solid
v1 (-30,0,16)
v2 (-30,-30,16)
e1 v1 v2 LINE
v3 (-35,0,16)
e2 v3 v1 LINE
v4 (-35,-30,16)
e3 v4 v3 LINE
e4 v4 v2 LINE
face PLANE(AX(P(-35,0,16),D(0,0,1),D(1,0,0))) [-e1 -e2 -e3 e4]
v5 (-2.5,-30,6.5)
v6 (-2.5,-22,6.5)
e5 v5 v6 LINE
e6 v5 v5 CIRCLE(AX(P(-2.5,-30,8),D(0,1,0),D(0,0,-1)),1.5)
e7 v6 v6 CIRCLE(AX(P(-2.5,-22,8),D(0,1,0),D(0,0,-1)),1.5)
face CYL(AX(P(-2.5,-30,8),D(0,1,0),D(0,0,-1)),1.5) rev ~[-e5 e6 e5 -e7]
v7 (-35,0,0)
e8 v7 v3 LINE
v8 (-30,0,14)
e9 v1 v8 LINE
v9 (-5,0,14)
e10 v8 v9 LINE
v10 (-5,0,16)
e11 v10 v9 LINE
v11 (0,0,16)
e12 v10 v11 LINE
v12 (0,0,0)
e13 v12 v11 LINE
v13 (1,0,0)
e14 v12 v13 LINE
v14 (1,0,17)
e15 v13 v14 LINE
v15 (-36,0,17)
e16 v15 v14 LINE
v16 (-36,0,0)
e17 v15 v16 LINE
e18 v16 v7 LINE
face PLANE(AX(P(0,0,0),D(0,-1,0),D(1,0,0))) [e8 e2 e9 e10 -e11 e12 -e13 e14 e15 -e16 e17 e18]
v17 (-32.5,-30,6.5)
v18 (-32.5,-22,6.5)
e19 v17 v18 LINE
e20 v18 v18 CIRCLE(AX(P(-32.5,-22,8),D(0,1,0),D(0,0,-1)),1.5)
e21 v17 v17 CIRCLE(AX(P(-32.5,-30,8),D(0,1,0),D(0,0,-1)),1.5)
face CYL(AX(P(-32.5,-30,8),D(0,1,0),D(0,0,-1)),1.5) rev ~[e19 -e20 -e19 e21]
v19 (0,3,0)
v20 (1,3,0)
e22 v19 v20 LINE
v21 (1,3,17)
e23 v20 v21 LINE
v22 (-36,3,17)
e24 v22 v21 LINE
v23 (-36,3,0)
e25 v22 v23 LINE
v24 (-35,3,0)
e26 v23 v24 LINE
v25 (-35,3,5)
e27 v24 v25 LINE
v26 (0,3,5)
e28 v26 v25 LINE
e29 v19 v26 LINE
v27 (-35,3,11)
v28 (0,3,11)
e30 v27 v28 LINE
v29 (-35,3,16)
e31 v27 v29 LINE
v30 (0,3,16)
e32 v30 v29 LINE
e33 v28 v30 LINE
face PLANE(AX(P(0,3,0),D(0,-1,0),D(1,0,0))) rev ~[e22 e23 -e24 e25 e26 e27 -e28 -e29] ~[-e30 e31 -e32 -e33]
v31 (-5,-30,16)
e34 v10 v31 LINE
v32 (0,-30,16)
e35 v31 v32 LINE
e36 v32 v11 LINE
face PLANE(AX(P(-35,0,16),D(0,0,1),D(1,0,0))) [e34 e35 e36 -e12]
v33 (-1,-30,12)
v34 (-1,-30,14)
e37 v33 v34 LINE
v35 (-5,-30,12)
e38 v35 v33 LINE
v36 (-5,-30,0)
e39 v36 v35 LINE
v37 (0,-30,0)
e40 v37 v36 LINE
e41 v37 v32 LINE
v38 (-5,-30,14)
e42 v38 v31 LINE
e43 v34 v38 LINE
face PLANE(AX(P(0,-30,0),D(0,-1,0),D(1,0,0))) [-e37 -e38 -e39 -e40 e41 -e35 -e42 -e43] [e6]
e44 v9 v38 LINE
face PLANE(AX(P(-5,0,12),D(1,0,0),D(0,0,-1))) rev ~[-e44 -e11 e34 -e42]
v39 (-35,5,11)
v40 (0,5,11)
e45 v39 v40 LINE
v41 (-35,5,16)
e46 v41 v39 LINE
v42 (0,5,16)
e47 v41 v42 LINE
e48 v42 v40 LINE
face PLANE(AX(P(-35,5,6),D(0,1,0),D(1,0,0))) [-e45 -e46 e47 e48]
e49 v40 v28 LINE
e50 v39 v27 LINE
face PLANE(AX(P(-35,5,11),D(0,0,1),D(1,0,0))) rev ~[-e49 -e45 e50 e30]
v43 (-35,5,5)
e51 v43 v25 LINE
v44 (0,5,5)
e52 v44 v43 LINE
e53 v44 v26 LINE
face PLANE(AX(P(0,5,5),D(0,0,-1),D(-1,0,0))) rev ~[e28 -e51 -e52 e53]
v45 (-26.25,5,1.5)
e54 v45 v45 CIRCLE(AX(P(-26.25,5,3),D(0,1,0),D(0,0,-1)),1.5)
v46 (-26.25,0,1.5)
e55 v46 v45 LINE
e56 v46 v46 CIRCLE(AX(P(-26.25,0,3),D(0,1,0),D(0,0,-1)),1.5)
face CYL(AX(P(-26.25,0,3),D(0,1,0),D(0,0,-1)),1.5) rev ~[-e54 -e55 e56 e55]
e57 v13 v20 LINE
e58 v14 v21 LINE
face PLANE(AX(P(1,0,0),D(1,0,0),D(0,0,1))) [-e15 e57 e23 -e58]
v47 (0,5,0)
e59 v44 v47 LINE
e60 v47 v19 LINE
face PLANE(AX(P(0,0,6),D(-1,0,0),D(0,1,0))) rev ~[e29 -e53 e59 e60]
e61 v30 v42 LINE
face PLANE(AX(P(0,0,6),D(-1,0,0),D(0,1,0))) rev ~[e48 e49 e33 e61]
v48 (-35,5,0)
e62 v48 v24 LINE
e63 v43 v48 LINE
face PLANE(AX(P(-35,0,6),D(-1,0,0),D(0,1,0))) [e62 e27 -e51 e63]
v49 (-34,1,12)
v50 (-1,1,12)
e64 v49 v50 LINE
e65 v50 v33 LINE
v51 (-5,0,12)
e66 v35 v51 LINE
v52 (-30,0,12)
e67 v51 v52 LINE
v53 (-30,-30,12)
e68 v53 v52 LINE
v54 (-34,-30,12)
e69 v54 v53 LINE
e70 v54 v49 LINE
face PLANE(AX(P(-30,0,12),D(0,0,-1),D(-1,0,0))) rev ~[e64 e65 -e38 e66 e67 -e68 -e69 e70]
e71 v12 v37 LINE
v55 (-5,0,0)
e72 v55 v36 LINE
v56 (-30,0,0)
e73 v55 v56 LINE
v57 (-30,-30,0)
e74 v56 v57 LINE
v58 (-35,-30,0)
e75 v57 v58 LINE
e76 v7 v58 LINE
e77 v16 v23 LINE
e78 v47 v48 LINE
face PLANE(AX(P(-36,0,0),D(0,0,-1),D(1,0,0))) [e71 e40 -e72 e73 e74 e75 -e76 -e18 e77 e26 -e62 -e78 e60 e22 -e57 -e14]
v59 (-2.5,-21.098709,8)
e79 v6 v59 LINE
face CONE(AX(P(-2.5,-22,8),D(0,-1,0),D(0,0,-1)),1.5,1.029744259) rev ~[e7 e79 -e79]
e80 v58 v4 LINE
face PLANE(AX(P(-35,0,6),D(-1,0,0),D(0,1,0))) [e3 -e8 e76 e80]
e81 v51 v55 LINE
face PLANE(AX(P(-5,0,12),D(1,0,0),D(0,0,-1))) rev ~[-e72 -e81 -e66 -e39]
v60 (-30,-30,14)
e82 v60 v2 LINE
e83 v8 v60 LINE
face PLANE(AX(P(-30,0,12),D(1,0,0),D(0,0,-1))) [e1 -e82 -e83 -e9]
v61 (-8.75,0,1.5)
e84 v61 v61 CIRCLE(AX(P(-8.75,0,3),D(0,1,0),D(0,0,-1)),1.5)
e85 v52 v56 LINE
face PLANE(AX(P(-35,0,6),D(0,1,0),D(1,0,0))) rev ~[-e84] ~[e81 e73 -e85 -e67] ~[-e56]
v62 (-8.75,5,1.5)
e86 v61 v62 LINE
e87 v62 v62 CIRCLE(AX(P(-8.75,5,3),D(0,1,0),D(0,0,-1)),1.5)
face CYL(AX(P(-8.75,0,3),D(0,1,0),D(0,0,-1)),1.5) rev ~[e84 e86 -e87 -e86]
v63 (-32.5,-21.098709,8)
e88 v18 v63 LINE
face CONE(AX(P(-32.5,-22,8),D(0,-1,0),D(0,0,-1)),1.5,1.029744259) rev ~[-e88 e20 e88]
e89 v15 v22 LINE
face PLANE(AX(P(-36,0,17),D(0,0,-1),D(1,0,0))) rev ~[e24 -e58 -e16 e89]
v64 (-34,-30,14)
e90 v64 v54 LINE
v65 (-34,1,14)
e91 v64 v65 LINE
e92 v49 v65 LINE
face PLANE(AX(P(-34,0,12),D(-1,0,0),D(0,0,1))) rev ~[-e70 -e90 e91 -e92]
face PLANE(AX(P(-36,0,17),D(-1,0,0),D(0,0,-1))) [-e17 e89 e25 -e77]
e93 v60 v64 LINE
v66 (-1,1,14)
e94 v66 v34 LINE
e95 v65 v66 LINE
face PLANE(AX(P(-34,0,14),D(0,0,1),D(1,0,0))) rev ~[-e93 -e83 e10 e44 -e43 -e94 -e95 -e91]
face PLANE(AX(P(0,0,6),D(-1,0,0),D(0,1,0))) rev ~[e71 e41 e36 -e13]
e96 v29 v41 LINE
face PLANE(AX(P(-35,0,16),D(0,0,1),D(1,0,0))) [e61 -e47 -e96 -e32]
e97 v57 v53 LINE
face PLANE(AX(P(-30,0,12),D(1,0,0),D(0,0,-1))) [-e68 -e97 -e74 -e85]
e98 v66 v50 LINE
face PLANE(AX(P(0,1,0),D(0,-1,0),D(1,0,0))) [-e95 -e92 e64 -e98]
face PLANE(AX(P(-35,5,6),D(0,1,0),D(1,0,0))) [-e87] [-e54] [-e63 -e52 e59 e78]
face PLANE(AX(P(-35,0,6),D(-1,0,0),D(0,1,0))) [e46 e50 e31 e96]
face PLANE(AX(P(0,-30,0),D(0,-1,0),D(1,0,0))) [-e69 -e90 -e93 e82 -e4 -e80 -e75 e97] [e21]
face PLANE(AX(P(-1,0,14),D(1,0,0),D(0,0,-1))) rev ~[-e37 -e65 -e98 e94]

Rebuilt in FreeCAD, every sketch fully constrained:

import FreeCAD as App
import Part
import Sketcher
Q = App.Units.Quantity


def add_polygon(sketch, points):
    """Adds a closed chain of lines whose ends are joined by coincident constraints."""
    first, n = sketch.GeometryCount, len(points)
    for a, b in zip(points, points[1:] + points[:1]):
        sketch.addGeometry(Part.LineSegment(App.Vector(*a, 0), App.Vector(*b, 0)), False)
    for i in range(n):
        sketch.addConstraint(Sketcher.Constraint("Coincident", first + i, 2, first + (i + 1) % n, 1))

doc = App.newDocument("Part")
params = doc.addObject("Spreadsheet::Sheet", "Params")
for row, (alias, value) in enumerate([
    ("sketch1_width", "35 mm"),
    ("sketch1_height", "6 mm"),
    ("pad1_length", "5 mm"),
    ("sketch2_width", "35 mm"),
    ("sketch2_height", "5 mm"),
    ("pad2_length", "10 mm"),
    ("sketch3_width", "35 mm"),
    ("sketch3_height", "6 mm"),
    ("pocket1_length", "2 mm"),
    ("sketch4_diameter", "3 mm"),
    ("hole_diameter", "3 mm"),
    ("hole_depth", "8 mm"),
    ("sketch5_width", "5 mm"),
    ("sketch5_height", "16 mm"),
    ("pad3_length", "30 mm"),
    ("sketch6_width", "33 mm"),
    ("sketch6_height", "2 mm"),
    ("pocket2_length", "35 mm"),
    ("pocket2_length2", "1 mm"),
    ("sketch7_width", "1 mm"),
    ("sketch7_height", "16 mm"),
    ("sketch7_width2", "35 mm"),
    ("pad4_length", "3 mm"),
    ("sketch8_diameter", "3 mm"),
    ("hole2_diameter", "3 mm"),
    ("hole2_depth", "8 mm"),
], start=1):
    params.set(f"A{row}", alias)
    params.set(f"B{row}", "=" + value)
    params.setAlias(f"B{row}", alias)

body = doc.addObject("PartDesign::Body", "Body")

# Sketch on XZ plane
sketch1 = body.newObject("Sketcher::SketchObject", "Sketch")
sketch1.AttachmentSupport = (doc.getObject("XZ_Plane"), [""])
sketch1.MapMode = "FlatFace"
add_polygon(sketch1, [(0, 0), (-35, 0), (-35, 6), (0, 6)])  # lines 0-3
sketch1.addConstraint([
    Sketcher.Constraint("Horizontal", 0),
    Sketcher.Constraint("Vertical", 1),
    Sketcher.Constraint("Horizontal", 2),
    Sketcher.Constraint("Vertical", 3),
    Sketcher.Constraint("Coincident", 3, 2, -1, 1),
    Sketcher.Constraint("DistanceX", 0, 2, 0, 1, Q("35 mm")),
    Sketcher.Constraint("DistanceY", 1, 1, 1, 2, Q("6 mm")),
])
sketch1.setExpression("Constraints[9]", "Params.sketch1_width")
sketch1.setExpression("Constraints[10]", "Params.sketch1_height")
pad1 = body.newObject("PartDesign::Pad", "Pad")
pad1.Profile = sketch1
pad1.setExpression("Length", "Params.pad1_length")
pad1.Reversed = True

# Sketch on XY plane
sketch2 = body.newObject("Sketcher::SketchObject", "Sketch001")
sketch2.AttachmentSupport = (doc.getObject("XY_Plane"), [""])
sketch2.MapMode = "FlatFace"
sketch2.AttachmentOffset = App.Placement(App.Vector(0, 0, 6), App.Rotation())
add_polygon(sketch2, [(-35, 5), (-35, 0), (0, 0), (0, 5)])  # lines 0-3
sketch2.addConstraint([
    Sketcher.Constraint("Vertical", 0),
    Sketcher.Constraint("Horizontal", 1),
    Sketcher.Constraint("Vertical", 2),
    Sketcher.Constraint("Horizontal", 3),
    Sketcher.Constraint("Coincident", 1, 2, -1, 1),
    Sketcher.Constraint("DistanceX", 1, 1, 1, 2, Q("35 mm")),
    Sketcher.Constraint("DistanceY", 0, 2, 0, 1, Q("5 mm")),
])
sketch2.setExpression("Constraints[9]", "Params.sketch2_width")
sketch2.setExpression("Constraints[10]", "Params.sketch2_height")
pad2 = body.newObject("PartDesign::Pad", "Pad001")
pad2.Profile = sketch2
pad2.setExpression("Length", "Params.pad2_length")

# Sketch on XZ plane
sketch3 = body.newObject("Sketcher::SketchObject", "Sketch002")
sketch3.AttachmentSupport = (doc.getObject("XZ_Plane"), [""])
sketch3.MapMode = "FlatFace"
sketch3.AttachmentOffset = App.Placement(App.Vector(0, 0, -5), App.Rotation())
add_polygon(sketch3, [(0, 11), (0, 5), (-35, 5), (-35, 11)])  # lines 0-3
sketch3.addConstraint([
    Sketcher.Constraint("Vertical", 0),
    Sketcher.Constraint("Horizontal", 1),
    Sketcher.Constraint("Vertical", 2),
    Sketcher.Constraint("Horizontal", 3),
    Sketcher.Constraint("PointOnObject", 0, 2, -2),
    Sketcher.Constraint("DistanceY", -1, 1, 0, 2, Q("5 mm")),
    Sketcher.Constraint("DistanceX", 1, 2, 1, 1, Q("35 mm")),
    Sketcher.Constraint("DistanceY", 0, 2, 0, 1, Q("6 mm")),
])
sketch3.setExpression("Constraints[10]", "Params.sketch3_width")
sketch3.setExpression("Constraints[11]", "Params.sketch3_height")
pocket1 = body.newObject("PartDesign::Pocket", "Pocket")
pocket1.Profile = sketch3
pocket1.setExpression("Length", "Params.pocket1_length")
pocket1.Reversed = True

# Sketch on XZ plane
sketch4 = body.newObject("Sketcher::SketchObject", "Sketch003")
sketch4.AttachmentSupport = (doc.getObject("XZ_Plane"), [""])
sketch4.MapMode = "FlatFace"
sketch4.addGeometry([
    Part.Circle(App.Vector(-8.8, 3, 0), App.Vector(0, 0, 1), 1.5),
    Part.Circle(App.Vector(-26.2, 3, 0), App.Vector(0, 0, 1), 1.5),
], False)
sketch4.addConstraint([
    Sketcher.Constraint("Equal", 0, 1),
    Sketcher.Constraint("Horizontal", 0, 3, 1, 3),
    Sketcher.Constraint("Diameter", 0, Q("3 mm")),
    Sketcher.Constraint("DistanceY", -1, 1, 0, 3, Q("3 mm")),
    Sketcher.Constraint("DistanceX", 1, 3, 0, 3, Q("17.5 mm")),
    Sketcher.Constraint("DistanceX", 0, 3, -1, 1, Q("8.75 mm")),
])
sketch4.setExpression("Constraints[2]", "Params.sketch4_diameter")
doc.recompute()
hole = body.newObject("PartDesign::Hole", "Hole")
hole.Profile = sketch4
hole.ThreadType = "None"
hole.setExpression("Diameter", "Params.hole_diameter")
hole.DepthType = "Dimension"
hole.setExpression("Depth", "Params.hole_depth")
hole.DrillPoint = "Angled"
hole.DrillPointAngle = 118

# Sketch on XZ plane
sketch5 = body.newObject("Sketcher::SketchObject", "Sketch004")
sketch5.AttachmentSupport = (doc.getObject("XZ_Plane"), [""])
sketch5.MapMode = "FlatFace"
add_polygon(sketch5, [(-35, 16), (-35, 0), (-30, 0), (-30, 16)])  # lines 0-3
add_polygon(sketch5, [(-5, 0), (0, 0), (0, 16), (-5, 16)])  # lines 4-7
sketch5.addConstraint([
    Sketcher.Constraint("Vertical", 0),
    Sketcher.Constraint("Horizontal", 1),
    Sketcher.Constraint("Vertical", 2),
    Sketcher.Constraint("Horizontal", 3),
    Sketcher.Constraint("Horizontal", 4),
    Sketcher.Constraint("Vertical", 5),
    Sketcher.Constraint("Horizontal", 6),
    Sketcher.Constraint("Vertical", 7),
    Sketcher.Constraint("Coincident", 4, 2, -1, 1),
    Sketcher.Constraint("PointOnObject", 0, 2, -1),
    Sketcher.Constraint("Horizontal", 3, 2, 5, 2),
    Sketcher.Constraint("Equal", 3, 4),
    Sketcher.Constraint("DistanceX", 1, 1, 1, 2, Q("5 mm")),
    Sketcher.Constraint("DistanceY", 0, 2, 0, 1, Q("16 mm")),
    Sketcher.Constraint("DistanceX", 0, 2, -1, 1, Q("35 mm")),
])
sketch5.setExpression("Constraints[20]", "Params.sketch5_width")
sketch5.setExpression("Constraints[21]", "Params.sketch5_height")
pad3 = body.newObject("PartDesign::Pad", "Pad002")
pad3.Profile = sketch5
pad3.setExpression("Length", "Params.pad3_length")

# Sketch on XZ plane
sketch6 = body.newObject("Sketcher::SketchObject", "Sketch005")
sketch6.AttachmentSupport = (doc.getObject("XZ_Plane"), [""])
sketch6.MapMode = "FlatFace"
add_polygon(sketch6, [(-34, 12), (-1, 12), (-1, 14), (-34, 14)])  # lines 0-3
sketch6.addConstraint([
    Sketcher.Constraint("Horizontal", 0),
    Sketcher.Constraint("Vertical", 1),
    Sketcher.Constraint("Horizontal", 2),
    Sketcher.Constraint("Vertical", 3),
    Sketcher.Constraint("DistanceX", 0, 1, 0, 2, Q("33 mm")),
    Sketcher.Constraint("DistanceY", 1, 1, 1, 2, Q("2 mm")),
    Sketcher.Constraint("DistanceX", 0, 2, -1, 1, Q("1 mm")),
    Sketcher.Constraint("DistanceY", -1, 1, 0, 2, Q("12 mm")),
])
sketch6.setExpression("Constraints[8]", "Params.sketch6_width")
sketch6.setExpression("Constraints[9]", "Params.sketch6_height")
pocket2 = body.newObject("PartDesign::Pocket", "Pocket001")
pocket2.Profile = sketch6
pocket2.Type = "TwoLengths"
pocket2.setExpression("Length", "Params.pocket2_length")
pocket2.setExpression("Length2", "Params.pocket2_length2")
pocket2.Reversed = True

# Sketch on XZ plane
sketch7 = body.newObject("Sketcher::SketchObject", "Sketch006")
sketch7.AttachmentSupport = (doc.getObject("XZ_Plane"), [""])
sketch7.MapMode = "FlatFace"
add_polygon(sketch7, [(-36, 0), (-35, 0), (-35, 16), (0, 16), (0, 0), (1, 0), (1, 17), (-36, 17)])  # lines 0-7
sketch7.addConstraint([
    Sketcher.Constraint("Horizontal", 0),
    Sketcher.Constraint("Vertical", 1),
    Sketcher.Constraint("Horizontal", 2),
    Sketcher.Constraint("Vertical", 3),
    Sketcher.Constraint("Horizontal", 4),
    Sketcher.Constraint("Vertical", 5),
    Sketcher.Constraint("Horizontal", 6),
    Sketcher.Constraint("Vertical", 7),
    Sketcher.Constraint("Coincident", 3, 2, -1, 1),
    Sketcher.Constraint("PointOnObject", 0, 2, -1),
    Sketcher.Constraint("Equal", 0, 4),
    Sketcher.Constraint("DistanceX", 0, 1, 0, 2, Q("1 mm")),
    Sketcher.Constraint("DistanceY", 1, 1, 1, 2, Q("16 mm")),
    Sketcher.Constraint("DistanceY", 2, 2, 5, 2, Q("1 mm")),
    Sketcher.Constraint("DistanceX", 2, 1, 2, 2, Q("35 mm")),
])
sketch7.setExpression("Constraints[19]", "Params.sketch7_width")
sketch7.setExpression("Constraints[20]", "Params.sketch7_height")
sketch7.setExpression("Constraints[22]", "Params.sketch7_width2")
pad4 = body.newObject("PartDesign::Pad", "Pad003")
pad4.Profile = sketch7
pad4.setExpression("Length", "Params.pad4_length")
pad4.Reversed = True

# Sketch on XZ plane
sketch8 = body.newObject("Sketcher::SketchObject", "Sketch007")
sketch8.AttachmentSupport = (doc.getObject("XZ_Plane"), [""])
sketch8.MapMode = "FlatFace"
sketch8.AttachmentOffset = App.Placement(App.Vector(0, 0, 30), App.Rotation())
sketch8.addGeometry([
    Part.Circle(App.Vector(-32.5, 8, 0), App.Vector(0, 0, 1), 1.5),
    Part.Circle(App.Vector(-2.5, 8, 0), App.Vector(0, 0, 1), 1.5),
], False)
sketch8.addConstraint([
    Sketcher.Constraint("Equal", 0, 1),
    Sketcher.Constraint("Horizontal", 0, 3, 1, 3),
    Sketcher.Constraint("Diameter", 0, Q("3 mm")),
    Sketcher.Constraint("DistanceY", -1, 1, 0, 3, Q("8 mm")),
    Sketcher.Constraint("DistanceX", 0, 3, 1, 3, Q("30 mm")),
    Sketcher.Constraint("DistanceX", 0, 3, -1, 1, Q("32.5 mm")),
])
sketch8.setExpression("Constraints[2]", "Params.sketch8_diameter")
doc.recompute()
hole2 = body.newObject("PartDesign::Hole", "Hole001")
hole2.Profile = sketch8
hole2.ThreadType = "None"
hole2.setExpression("Diameter", "Params.hole2_diameter")
hole2.DepthType = "Dimension"
hole2.setExpression("Depth", "Params.hole2_depth")
hole2.DrillPoint = "Angled"
hole2.DrillPointAngle = 118

doc.recompute()
